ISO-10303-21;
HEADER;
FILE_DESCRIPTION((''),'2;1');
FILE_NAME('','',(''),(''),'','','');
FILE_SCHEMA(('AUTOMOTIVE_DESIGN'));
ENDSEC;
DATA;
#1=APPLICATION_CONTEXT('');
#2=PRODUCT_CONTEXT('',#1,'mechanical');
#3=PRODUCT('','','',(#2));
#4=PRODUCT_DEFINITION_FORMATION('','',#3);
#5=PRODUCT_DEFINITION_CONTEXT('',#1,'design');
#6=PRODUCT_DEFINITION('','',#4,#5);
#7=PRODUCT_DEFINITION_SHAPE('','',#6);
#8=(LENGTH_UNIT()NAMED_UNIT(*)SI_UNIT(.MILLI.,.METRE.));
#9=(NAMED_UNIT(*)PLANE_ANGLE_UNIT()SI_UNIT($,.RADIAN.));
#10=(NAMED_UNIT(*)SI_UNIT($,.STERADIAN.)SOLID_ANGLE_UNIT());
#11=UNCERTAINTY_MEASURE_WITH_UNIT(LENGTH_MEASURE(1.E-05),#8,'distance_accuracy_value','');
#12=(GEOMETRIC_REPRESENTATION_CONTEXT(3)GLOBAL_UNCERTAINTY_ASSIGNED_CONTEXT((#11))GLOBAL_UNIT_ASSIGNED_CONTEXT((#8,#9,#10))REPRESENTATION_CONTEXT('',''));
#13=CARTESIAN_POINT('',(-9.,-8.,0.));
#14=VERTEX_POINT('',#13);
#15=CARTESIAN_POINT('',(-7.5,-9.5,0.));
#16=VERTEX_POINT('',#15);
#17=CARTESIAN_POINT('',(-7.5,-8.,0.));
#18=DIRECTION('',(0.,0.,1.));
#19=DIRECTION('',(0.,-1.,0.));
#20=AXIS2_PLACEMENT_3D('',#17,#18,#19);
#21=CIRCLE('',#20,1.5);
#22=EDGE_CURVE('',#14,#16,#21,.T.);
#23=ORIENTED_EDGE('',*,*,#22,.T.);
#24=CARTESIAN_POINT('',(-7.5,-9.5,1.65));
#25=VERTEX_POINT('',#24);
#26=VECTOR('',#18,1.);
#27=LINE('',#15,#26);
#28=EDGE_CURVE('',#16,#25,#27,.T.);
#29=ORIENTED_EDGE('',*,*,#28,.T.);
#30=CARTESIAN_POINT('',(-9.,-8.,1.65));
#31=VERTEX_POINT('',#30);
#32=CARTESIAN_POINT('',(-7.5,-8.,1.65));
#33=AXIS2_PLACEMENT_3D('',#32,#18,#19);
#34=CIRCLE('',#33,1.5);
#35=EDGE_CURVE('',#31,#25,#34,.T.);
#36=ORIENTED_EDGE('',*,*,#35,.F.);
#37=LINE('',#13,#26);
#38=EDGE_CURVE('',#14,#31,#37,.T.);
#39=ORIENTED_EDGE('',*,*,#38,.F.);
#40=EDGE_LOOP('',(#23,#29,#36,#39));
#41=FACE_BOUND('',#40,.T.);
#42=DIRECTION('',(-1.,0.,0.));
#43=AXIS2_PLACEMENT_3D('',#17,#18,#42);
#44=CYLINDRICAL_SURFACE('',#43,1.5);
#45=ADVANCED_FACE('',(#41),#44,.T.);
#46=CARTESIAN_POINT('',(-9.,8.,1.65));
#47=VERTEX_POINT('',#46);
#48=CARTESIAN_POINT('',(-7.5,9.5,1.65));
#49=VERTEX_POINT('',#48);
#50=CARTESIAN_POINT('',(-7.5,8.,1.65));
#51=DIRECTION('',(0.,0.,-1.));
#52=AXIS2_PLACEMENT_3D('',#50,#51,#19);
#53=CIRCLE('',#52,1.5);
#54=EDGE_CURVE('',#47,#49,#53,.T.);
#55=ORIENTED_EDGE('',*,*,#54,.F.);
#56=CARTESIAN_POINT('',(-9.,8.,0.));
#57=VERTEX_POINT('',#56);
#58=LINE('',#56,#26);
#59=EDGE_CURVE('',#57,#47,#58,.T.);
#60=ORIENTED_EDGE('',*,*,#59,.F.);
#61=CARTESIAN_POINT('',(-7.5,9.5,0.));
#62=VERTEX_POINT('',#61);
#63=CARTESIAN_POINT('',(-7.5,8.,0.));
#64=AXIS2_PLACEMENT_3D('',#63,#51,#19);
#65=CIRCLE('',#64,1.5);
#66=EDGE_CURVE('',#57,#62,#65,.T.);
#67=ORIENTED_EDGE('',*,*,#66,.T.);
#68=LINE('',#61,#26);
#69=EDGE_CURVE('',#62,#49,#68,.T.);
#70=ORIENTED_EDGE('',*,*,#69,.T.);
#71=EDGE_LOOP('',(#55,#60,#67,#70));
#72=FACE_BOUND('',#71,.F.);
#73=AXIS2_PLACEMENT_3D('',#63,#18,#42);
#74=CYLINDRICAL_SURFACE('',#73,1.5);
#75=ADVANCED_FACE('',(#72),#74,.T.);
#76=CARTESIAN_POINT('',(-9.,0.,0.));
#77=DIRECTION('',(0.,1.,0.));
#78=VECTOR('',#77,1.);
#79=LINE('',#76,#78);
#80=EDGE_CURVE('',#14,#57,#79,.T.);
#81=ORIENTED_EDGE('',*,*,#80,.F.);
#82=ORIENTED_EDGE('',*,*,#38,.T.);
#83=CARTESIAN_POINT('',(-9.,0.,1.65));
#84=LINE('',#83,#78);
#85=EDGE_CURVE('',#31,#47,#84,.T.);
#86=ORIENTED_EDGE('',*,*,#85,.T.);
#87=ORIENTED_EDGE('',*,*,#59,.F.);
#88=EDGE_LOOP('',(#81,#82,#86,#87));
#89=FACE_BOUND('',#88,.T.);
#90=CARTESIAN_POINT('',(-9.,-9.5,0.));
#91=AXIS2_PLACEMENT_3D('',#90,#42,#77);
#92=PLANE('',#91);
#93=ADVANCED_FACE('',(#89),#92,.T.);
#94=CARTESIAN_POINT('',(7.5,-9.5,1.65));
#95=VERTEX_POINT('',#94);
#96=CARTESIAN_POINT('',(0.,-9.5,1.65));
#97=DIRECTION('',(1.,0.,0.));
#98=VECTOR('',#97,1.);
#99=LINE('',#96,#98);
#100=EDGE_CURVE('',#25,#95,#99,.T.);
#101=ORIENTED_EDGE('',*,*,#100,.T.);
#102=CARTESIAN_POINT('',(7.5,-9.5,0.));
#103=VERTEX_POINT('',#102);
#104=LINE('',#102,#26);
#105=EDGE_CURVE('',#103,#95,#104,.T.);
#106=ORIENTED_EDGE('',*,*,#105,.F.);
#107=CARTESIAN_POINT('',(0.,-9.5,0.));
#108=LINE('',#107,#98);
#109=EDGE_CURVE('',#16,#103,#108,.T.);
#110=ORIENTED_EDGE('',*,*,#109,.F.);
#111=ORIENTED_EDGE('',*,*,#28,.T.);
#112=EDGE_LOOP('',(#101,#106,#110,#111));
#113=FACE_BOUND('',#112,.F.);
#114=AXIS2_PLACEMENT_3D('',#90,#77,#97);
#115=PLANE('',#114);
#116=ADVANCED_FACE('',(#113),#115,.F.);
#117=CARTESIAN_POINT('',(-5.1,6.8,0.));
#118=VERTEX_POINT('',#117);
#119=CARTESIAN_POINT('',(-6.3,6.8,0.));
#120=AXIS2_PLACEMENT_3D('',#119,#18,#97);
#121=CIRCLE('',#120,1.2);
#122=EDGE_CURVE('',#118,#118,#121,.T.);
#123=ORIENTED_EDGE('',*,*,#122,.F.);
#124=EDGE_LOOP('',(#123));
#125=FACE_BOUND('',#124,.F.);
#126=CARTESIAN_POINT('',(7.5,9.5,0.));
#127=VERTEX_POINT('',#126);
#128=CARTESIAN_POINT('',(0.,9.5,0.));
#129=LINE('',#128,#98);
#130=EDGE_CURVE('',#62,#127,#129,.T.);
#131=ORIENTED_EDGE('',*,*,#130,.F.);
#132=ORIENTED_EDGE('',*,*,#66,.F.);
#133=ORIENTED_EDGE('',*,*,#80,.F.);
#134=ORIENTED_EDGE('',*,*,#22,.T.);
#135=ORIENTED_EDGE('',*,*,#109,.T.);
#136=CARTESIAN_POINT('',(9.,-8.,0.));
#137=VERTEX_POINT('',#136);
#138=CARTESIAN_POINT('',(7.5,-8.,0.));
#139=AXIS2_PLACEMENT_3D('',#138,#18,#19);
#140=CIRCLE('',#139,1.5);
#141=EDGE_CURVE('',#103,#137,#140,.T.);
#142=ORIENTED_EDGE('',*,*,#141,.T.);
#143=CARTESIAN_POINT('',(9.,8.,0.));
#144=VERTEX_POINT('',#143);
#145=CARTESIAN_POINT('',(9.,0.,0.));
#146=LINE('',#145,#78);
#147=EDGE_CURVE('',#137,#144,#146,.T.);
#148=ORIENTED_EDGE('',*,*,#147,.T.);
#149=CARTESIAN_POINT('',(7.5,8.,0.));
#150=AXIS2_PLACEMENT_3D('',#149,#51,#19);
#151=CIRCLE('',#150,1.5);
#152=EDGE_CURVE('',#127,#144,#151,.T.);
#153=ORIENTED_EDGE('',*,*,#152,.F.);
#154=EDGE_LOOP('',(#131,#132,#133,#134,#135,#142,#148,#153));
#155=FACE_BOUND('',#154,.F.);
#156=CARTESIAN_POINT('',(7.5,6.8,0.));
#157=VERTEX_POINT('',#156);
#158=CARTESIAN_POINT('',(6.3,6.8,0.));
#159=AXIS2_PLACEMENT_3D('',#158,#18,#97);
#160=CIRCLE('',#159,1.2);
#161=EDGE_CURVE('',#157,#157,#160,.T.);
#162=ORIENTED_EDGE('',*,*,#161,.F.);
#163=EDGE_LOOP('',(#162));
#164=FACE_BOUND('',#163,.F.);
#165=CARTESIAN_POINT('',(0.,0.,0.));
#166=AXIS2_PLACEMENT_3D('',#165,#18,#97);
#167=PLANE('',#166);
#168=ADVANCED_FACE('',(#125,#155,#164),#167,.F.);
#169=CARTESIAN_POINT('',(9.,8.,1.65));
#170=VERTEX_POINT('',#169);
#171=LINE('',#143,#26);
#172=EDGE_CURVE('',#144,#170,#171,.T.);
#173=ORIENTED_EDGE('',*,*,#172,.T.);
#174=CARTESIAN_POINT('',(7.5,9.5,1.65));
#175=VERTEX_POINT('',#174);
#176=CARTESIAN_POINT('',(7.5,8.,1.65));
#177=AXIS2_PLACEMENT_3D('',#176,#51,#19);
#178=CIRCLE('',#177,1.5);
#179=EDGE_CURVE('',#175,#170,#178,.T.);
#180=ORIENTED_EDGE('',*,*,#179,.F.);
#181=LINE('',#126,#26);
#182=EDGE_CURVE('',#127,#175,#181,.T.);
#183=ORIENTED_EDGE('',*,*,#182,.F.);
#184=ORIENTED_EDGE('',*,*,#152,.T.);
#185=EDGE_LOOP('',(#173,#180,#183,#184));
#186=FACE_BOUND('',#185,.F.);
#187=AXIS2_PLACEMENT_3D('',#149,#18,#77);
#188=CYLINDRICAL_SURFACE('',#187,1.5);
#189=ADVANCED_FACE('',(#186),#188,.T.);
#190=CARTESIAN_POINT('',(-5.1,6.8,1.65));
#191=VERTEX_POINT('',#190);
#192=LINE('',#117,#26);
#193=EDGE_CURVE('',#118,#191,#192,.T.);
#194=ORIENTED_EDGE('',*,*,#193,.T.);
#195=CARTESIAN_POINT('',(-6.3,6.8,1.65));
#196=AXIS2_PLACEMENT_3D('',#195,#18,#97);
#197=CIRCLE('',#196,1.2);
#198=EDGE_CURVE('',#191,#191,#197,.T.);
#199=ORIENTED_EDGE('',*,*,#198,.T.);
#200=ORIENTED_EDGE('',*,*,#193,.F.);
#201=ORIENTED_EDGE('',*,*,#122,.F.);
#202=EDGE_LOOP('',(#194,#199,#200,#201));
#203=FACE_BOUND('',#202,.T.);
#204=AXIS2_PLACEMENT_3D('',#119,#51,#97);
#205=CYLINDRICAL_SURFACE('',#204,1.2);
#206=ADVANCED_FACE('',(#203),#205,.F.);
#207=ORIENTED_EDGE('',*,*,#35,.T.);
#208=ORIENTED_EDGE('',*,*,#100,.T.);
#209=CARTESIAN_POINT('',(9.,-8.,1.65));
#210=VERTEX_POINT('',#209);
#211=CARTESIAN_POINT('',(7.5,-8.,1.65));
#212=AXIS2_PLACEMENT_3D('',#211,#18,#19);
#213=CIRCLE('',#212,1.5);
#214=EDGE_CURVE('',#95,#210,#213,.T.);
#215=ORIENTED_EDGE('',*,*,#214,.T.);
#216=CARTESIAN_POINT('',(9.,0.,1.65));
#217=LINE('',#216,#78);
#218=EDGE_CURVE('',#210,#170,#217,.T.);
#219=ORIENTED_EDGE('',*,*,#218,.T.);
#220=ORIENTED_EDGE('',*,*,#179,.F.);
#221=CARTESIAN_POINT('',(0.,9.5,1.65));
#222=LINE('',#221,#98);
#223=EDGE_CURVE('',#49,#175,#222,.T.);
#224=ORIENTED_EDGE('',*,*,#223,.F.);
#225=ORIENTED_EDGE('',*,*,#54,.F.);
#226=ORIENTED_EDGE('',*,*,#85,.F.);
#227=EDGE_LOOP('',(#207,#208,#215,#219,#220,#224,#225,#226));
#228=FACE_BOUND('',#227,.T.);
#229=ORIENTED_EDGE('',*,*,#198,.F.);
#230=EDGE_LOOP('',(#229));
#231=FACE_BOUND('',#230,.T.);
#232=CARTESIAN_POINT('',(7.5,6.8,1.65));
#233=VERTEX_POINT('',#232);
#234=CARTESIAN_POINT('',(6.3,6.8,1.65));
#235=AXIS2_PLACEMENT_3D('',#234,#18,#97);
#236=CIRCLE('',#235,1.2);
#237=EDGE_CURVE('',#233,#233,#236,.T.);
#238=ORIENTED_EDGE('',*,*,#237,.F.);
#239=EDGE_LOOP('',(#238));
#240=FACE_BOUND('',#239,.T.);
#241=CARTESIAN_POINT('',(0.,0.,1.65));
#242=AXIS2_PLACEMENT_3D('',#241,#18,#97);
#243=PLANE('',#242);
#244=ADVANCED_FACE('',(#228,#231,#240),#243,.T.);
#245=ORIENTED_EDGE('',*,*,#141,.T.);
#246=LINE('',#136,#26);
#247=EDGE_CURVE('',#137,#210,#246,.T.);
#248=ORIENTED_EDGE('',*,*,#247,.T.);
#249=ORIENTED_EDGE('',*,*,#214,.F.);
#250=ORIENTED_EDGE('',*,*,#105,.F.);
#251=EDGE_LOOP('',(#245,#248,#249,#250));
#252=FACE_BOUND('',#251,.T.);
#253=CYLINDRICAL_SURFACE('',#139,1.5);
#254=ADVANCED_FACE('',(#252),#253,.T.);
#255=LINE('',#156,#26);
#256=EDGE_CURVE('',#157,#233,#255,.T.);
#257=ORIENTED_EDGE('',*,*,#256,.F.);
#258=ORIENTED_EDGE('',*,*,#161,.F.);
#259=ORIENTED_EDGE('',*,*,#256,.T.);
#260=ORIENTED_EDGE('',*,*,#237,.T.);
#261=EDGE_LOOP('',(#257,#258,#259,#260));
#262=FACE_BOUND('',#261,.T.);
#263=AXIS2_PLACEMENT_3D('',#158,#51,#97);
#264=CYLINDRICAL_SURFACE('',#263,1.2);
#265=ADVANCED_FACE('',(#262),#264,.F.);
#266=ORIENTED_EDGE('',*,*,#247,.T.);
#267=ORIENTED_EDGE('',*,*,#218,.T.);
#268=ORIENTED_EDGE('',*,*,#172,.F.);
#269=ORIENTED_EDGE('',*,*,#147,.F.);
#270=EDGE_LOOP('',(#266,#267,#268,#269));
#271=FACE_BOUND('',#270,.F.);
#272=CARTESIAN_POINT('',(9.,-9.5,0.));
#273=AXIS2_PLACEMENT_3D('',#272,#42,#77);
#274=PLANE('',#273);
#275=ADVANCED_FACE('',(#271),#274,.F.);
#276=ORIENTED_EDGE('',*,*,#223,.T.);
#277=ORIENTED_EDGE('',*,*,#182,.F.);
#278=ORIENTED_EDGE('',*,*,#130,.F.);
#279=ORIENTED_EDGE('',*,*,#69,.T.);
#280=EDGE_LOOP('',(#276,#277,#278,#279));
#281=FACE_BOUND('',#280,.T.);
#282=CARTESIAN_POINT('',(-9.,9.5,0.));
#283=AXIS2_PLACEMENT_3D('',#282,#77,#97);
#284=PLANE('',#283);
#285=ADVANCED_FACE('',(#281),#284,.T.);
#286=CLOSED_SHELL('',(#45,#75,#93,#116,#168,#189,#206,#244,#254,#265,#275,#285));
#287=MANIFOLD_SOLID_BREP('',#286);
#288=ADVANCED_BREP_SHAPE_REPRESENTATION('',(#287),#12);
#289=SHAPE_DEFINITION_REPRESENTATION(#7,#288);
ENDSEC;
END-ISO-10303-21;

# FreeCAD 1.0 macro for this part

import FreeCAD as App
import Part
import Sketcher
from FreeCAD import Vector


def edges_at(feature, points):
    """Names of the edges that pass closest to the given points."""
    edges = feature.Shape.Edges
    near = lambda p: min(range(len(edges)), key=lambda i: edges[i].distToShape(Part.Vertex(*p))[0])
    return sorted({f"Edge{near(p) + 1}" for p in points})

doc = App.newDocument("Part")
body = doc.addObject("PartDesign::Body", "Body")

sketch1 = body.newObject("Sketcher::SketchObject", "Sketch")
sketch1.AttachmentSupport = (doc.getObject("XY_Plane"), [""])
sketch1.MapMode = "FlatFace"
sketch1.addGeometry([
    Part.LineSegment(Vector(-9, 9.5, 0), Vector(-9, -9.5, 0)),
    Part.LineSegment(Vector(-9, -9.5, 0), Vector(9, -9.5, 0)),
    Part.LineSegment(Vector(9, -9.5, 0), Vector(9, 9.5, 0)),
    Part.LineSegment(Vector(9, 9.5, 0), Vector(-9, 9.5, 0)),
    Part.Circle(Vector(-6.3, 6.8, 0), Vector(0, 0, 1), 1.2),
    Part.Circle(Vector(6.3, 6.8, 0), Vector(0, 0, 1), 1.2),
], False)
sketch1.addConstraint([
    Sketcher.Constraint("Coincident", 0, 2, 1, 1),
    Sketcher.Constraint("Coincident", 1, 2, 2, 1),
    Sketcher.Constraint("Coincident", 2, 2, 3, 1),
    Sketcher.Constraint("Coincident", 3, 2, 0, 1),
    Sketcher.Constraint("Vertical", 0),
    Sketcher.Constraint("Horizontal", 1),
    Sketcher.Constraint("Vertical", 2),
    Sketcher.Constraint("Horizontal", 3),
    Sketcher.Constraint("Equal", 4, 5),
    Sketcher.Constraint("Symmetric", 0, 2, 2, 2, -1, 1),
    Sketcher.Constraint("Symmetric", 4, 3, 5, 3, -2),
    Sketcher.Constraint("Diameter", 4, 2.4),
    Sketcher.Constraint("DistanceX", 1, 1, 1, 2, 18.0),
    Sketcher.Constraint("DistanceY", 0, 2, 0, 1, 19.0),
    Sketcher.Constraint("DistanceX", 4, 3, -1, 1, 6.3),
    Sketcher.Constraint("DistanceY", -1, 1, 4, 3, 6.8),
])
pad1 = body.newObject("PartDesign::Pad", "Pad")
pad1.Profile = sketch1
pad1.Length = 1.65
doc.recompute()

fillet = body.newObject("PartDesign::Fillet", "Fillet")
fillet.Base = (pad1, edges_at(pad1, [
    (-9, -9.5, 0.825),
    (9, -9.5, 0.825),
    (9, 9.5, 0.825),
    (-9, 9.5, 0.825),
]))
fillet.Radius = 1.5

doc.recompute()
